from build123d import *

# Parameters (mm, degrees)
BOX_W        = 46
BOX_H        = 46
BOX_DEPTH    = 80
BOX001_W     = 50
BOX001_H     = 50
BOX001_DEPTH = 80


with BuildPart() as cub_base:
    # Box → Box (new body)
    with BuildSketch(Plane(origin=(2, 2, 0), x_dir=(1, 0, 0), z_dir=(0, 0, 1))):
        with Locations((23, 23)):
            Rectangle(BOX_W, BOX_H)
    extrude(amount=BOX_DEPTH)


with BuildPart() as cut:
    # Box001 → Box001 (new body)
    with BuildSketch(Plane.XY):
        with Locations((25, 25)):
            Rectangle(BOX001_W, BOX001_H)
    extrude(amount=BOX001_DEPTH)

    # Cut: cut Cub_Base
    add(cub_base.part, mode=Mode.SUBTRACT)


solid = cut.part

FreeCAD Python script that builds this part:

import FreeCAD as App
import Part
import Sketcher

V = App.Vector
Q = App.Units.Quantity

doc = App.newDocument("Part")
body = doc.addObject("PartDesign::Body", "Body")

# Sketch on XY plane
sketch1 = body.newObject("Sketcher::SketchObject", "Sketch")
sketch1.AttachmentSupport = (doc.getObject("XY_Plane"), [""])
sketch1.MapMode = "FlatFace"
sketch1.addGeometry([
    Part.LineSegment(V(2, 48, 0), V(2, 2, 0)),
    Part.LineSegment(V(2, 2, 0), V(48, 2, 0)),
    Part.LineSegment(V(48, 2, 0), V(48, 48, 0)),
    Part.LineSegment(V(48, 48, 0), V(2, 48, 0)),
], False)
sketch1.addConstraint([
    Sketcher.Constraint("Coincident", 0, 2, 1, 1),
    Sketcher.Constraint("Coincident", 1, 2, 2, 1),
    Sketcher.Constraint("Coincident", 2, 2, 3, 1),
    Sketcher.Constraint("Coincident", 3, 2, 0, 1),
    Sketcher.Constraint("Vertical", 0),
    Sketcher.Constraint("Horizontal", 1),
    Sketcher.Constraint("Vertical", 2),
    Sketcher.Constraint("Horizontal", 3),
    Sketcher.Constraint("Equal", 3, 0),
    Sketcher.Constraint("DistanceX", 1, 1, 1, 2, Q("46 mm")),
    Sketcher.Constraint("DistanceX", -1, 1, 0, 2, Q("2 mm")),
    Sketcher.Constraint("DistanceY", -1, 1, 0, 2, Q("2 mm")),
])
pad1 = body.newObject("PartDesign::Pad", "Pad")
pad1.Profile = sketch1
pad1.Length = 80
body2 = doc.addObject("PartDesign::Body", "Body001")

# Sketch on XY plane
sketch2 = body2.newObject("Sketcher::SketchObject", "Sketch001")
sketch2.AttachmentSupport = (doc.getObject("XY_Plane001"), [""])
sketch2.MapMode = "FlatFace"
sketch2.addGeometry([
    Part.LineSegment(V(0, 50, 0), V(0, 0, 0)),
    Part.LineSegment(V(0, 0, 0), V(50, 0, 0)),
    Part.LineSegment(V(50, 0, 0), V(50, 50, 0)),
    Part.LineSegment(V(50, 50, 0), V(0, 50, 0)),
], False)
sketch2.addConstraint([
    Sketcher.Constraint("Coincident", 0, 2, 1, 1),
    Sketcher.Constraint("Coincident", 1, 2, 2, 1),
    Sketcher.Constraint("Coincident", 2, 2, 3, 1),
    Sketcher.Constraint("Coincident", 3, 2, 0, 1),
    Sketcher.Constraint("Vertical", 0),
    Sketcher.Constraint("Horizontal", 1),
    Sketcher.Constraint("Vertical", 2),
    Sketcher.Constraint("Horizontal", 3),
    Sketcher.Constraint("Coincident", 0, 2, -1, 1),
    Sketcher.Constraint("Equal", 3, 0),
    Sketcher.Constraint("DistanceX", 1, 1, 1, 2, Q("50 mm")),
])
pad2 = body2.newObject("PartDesign::Pad", "Pad001")
pad2.Profile = sketch2
pad2.Length = 80
doc.recompute()

boolean = body2.newObject("PartDesign::Boolean", "Boolean")
boolean.Type = "Cut"
boolean.addObjects([body])

doc.recompute()
